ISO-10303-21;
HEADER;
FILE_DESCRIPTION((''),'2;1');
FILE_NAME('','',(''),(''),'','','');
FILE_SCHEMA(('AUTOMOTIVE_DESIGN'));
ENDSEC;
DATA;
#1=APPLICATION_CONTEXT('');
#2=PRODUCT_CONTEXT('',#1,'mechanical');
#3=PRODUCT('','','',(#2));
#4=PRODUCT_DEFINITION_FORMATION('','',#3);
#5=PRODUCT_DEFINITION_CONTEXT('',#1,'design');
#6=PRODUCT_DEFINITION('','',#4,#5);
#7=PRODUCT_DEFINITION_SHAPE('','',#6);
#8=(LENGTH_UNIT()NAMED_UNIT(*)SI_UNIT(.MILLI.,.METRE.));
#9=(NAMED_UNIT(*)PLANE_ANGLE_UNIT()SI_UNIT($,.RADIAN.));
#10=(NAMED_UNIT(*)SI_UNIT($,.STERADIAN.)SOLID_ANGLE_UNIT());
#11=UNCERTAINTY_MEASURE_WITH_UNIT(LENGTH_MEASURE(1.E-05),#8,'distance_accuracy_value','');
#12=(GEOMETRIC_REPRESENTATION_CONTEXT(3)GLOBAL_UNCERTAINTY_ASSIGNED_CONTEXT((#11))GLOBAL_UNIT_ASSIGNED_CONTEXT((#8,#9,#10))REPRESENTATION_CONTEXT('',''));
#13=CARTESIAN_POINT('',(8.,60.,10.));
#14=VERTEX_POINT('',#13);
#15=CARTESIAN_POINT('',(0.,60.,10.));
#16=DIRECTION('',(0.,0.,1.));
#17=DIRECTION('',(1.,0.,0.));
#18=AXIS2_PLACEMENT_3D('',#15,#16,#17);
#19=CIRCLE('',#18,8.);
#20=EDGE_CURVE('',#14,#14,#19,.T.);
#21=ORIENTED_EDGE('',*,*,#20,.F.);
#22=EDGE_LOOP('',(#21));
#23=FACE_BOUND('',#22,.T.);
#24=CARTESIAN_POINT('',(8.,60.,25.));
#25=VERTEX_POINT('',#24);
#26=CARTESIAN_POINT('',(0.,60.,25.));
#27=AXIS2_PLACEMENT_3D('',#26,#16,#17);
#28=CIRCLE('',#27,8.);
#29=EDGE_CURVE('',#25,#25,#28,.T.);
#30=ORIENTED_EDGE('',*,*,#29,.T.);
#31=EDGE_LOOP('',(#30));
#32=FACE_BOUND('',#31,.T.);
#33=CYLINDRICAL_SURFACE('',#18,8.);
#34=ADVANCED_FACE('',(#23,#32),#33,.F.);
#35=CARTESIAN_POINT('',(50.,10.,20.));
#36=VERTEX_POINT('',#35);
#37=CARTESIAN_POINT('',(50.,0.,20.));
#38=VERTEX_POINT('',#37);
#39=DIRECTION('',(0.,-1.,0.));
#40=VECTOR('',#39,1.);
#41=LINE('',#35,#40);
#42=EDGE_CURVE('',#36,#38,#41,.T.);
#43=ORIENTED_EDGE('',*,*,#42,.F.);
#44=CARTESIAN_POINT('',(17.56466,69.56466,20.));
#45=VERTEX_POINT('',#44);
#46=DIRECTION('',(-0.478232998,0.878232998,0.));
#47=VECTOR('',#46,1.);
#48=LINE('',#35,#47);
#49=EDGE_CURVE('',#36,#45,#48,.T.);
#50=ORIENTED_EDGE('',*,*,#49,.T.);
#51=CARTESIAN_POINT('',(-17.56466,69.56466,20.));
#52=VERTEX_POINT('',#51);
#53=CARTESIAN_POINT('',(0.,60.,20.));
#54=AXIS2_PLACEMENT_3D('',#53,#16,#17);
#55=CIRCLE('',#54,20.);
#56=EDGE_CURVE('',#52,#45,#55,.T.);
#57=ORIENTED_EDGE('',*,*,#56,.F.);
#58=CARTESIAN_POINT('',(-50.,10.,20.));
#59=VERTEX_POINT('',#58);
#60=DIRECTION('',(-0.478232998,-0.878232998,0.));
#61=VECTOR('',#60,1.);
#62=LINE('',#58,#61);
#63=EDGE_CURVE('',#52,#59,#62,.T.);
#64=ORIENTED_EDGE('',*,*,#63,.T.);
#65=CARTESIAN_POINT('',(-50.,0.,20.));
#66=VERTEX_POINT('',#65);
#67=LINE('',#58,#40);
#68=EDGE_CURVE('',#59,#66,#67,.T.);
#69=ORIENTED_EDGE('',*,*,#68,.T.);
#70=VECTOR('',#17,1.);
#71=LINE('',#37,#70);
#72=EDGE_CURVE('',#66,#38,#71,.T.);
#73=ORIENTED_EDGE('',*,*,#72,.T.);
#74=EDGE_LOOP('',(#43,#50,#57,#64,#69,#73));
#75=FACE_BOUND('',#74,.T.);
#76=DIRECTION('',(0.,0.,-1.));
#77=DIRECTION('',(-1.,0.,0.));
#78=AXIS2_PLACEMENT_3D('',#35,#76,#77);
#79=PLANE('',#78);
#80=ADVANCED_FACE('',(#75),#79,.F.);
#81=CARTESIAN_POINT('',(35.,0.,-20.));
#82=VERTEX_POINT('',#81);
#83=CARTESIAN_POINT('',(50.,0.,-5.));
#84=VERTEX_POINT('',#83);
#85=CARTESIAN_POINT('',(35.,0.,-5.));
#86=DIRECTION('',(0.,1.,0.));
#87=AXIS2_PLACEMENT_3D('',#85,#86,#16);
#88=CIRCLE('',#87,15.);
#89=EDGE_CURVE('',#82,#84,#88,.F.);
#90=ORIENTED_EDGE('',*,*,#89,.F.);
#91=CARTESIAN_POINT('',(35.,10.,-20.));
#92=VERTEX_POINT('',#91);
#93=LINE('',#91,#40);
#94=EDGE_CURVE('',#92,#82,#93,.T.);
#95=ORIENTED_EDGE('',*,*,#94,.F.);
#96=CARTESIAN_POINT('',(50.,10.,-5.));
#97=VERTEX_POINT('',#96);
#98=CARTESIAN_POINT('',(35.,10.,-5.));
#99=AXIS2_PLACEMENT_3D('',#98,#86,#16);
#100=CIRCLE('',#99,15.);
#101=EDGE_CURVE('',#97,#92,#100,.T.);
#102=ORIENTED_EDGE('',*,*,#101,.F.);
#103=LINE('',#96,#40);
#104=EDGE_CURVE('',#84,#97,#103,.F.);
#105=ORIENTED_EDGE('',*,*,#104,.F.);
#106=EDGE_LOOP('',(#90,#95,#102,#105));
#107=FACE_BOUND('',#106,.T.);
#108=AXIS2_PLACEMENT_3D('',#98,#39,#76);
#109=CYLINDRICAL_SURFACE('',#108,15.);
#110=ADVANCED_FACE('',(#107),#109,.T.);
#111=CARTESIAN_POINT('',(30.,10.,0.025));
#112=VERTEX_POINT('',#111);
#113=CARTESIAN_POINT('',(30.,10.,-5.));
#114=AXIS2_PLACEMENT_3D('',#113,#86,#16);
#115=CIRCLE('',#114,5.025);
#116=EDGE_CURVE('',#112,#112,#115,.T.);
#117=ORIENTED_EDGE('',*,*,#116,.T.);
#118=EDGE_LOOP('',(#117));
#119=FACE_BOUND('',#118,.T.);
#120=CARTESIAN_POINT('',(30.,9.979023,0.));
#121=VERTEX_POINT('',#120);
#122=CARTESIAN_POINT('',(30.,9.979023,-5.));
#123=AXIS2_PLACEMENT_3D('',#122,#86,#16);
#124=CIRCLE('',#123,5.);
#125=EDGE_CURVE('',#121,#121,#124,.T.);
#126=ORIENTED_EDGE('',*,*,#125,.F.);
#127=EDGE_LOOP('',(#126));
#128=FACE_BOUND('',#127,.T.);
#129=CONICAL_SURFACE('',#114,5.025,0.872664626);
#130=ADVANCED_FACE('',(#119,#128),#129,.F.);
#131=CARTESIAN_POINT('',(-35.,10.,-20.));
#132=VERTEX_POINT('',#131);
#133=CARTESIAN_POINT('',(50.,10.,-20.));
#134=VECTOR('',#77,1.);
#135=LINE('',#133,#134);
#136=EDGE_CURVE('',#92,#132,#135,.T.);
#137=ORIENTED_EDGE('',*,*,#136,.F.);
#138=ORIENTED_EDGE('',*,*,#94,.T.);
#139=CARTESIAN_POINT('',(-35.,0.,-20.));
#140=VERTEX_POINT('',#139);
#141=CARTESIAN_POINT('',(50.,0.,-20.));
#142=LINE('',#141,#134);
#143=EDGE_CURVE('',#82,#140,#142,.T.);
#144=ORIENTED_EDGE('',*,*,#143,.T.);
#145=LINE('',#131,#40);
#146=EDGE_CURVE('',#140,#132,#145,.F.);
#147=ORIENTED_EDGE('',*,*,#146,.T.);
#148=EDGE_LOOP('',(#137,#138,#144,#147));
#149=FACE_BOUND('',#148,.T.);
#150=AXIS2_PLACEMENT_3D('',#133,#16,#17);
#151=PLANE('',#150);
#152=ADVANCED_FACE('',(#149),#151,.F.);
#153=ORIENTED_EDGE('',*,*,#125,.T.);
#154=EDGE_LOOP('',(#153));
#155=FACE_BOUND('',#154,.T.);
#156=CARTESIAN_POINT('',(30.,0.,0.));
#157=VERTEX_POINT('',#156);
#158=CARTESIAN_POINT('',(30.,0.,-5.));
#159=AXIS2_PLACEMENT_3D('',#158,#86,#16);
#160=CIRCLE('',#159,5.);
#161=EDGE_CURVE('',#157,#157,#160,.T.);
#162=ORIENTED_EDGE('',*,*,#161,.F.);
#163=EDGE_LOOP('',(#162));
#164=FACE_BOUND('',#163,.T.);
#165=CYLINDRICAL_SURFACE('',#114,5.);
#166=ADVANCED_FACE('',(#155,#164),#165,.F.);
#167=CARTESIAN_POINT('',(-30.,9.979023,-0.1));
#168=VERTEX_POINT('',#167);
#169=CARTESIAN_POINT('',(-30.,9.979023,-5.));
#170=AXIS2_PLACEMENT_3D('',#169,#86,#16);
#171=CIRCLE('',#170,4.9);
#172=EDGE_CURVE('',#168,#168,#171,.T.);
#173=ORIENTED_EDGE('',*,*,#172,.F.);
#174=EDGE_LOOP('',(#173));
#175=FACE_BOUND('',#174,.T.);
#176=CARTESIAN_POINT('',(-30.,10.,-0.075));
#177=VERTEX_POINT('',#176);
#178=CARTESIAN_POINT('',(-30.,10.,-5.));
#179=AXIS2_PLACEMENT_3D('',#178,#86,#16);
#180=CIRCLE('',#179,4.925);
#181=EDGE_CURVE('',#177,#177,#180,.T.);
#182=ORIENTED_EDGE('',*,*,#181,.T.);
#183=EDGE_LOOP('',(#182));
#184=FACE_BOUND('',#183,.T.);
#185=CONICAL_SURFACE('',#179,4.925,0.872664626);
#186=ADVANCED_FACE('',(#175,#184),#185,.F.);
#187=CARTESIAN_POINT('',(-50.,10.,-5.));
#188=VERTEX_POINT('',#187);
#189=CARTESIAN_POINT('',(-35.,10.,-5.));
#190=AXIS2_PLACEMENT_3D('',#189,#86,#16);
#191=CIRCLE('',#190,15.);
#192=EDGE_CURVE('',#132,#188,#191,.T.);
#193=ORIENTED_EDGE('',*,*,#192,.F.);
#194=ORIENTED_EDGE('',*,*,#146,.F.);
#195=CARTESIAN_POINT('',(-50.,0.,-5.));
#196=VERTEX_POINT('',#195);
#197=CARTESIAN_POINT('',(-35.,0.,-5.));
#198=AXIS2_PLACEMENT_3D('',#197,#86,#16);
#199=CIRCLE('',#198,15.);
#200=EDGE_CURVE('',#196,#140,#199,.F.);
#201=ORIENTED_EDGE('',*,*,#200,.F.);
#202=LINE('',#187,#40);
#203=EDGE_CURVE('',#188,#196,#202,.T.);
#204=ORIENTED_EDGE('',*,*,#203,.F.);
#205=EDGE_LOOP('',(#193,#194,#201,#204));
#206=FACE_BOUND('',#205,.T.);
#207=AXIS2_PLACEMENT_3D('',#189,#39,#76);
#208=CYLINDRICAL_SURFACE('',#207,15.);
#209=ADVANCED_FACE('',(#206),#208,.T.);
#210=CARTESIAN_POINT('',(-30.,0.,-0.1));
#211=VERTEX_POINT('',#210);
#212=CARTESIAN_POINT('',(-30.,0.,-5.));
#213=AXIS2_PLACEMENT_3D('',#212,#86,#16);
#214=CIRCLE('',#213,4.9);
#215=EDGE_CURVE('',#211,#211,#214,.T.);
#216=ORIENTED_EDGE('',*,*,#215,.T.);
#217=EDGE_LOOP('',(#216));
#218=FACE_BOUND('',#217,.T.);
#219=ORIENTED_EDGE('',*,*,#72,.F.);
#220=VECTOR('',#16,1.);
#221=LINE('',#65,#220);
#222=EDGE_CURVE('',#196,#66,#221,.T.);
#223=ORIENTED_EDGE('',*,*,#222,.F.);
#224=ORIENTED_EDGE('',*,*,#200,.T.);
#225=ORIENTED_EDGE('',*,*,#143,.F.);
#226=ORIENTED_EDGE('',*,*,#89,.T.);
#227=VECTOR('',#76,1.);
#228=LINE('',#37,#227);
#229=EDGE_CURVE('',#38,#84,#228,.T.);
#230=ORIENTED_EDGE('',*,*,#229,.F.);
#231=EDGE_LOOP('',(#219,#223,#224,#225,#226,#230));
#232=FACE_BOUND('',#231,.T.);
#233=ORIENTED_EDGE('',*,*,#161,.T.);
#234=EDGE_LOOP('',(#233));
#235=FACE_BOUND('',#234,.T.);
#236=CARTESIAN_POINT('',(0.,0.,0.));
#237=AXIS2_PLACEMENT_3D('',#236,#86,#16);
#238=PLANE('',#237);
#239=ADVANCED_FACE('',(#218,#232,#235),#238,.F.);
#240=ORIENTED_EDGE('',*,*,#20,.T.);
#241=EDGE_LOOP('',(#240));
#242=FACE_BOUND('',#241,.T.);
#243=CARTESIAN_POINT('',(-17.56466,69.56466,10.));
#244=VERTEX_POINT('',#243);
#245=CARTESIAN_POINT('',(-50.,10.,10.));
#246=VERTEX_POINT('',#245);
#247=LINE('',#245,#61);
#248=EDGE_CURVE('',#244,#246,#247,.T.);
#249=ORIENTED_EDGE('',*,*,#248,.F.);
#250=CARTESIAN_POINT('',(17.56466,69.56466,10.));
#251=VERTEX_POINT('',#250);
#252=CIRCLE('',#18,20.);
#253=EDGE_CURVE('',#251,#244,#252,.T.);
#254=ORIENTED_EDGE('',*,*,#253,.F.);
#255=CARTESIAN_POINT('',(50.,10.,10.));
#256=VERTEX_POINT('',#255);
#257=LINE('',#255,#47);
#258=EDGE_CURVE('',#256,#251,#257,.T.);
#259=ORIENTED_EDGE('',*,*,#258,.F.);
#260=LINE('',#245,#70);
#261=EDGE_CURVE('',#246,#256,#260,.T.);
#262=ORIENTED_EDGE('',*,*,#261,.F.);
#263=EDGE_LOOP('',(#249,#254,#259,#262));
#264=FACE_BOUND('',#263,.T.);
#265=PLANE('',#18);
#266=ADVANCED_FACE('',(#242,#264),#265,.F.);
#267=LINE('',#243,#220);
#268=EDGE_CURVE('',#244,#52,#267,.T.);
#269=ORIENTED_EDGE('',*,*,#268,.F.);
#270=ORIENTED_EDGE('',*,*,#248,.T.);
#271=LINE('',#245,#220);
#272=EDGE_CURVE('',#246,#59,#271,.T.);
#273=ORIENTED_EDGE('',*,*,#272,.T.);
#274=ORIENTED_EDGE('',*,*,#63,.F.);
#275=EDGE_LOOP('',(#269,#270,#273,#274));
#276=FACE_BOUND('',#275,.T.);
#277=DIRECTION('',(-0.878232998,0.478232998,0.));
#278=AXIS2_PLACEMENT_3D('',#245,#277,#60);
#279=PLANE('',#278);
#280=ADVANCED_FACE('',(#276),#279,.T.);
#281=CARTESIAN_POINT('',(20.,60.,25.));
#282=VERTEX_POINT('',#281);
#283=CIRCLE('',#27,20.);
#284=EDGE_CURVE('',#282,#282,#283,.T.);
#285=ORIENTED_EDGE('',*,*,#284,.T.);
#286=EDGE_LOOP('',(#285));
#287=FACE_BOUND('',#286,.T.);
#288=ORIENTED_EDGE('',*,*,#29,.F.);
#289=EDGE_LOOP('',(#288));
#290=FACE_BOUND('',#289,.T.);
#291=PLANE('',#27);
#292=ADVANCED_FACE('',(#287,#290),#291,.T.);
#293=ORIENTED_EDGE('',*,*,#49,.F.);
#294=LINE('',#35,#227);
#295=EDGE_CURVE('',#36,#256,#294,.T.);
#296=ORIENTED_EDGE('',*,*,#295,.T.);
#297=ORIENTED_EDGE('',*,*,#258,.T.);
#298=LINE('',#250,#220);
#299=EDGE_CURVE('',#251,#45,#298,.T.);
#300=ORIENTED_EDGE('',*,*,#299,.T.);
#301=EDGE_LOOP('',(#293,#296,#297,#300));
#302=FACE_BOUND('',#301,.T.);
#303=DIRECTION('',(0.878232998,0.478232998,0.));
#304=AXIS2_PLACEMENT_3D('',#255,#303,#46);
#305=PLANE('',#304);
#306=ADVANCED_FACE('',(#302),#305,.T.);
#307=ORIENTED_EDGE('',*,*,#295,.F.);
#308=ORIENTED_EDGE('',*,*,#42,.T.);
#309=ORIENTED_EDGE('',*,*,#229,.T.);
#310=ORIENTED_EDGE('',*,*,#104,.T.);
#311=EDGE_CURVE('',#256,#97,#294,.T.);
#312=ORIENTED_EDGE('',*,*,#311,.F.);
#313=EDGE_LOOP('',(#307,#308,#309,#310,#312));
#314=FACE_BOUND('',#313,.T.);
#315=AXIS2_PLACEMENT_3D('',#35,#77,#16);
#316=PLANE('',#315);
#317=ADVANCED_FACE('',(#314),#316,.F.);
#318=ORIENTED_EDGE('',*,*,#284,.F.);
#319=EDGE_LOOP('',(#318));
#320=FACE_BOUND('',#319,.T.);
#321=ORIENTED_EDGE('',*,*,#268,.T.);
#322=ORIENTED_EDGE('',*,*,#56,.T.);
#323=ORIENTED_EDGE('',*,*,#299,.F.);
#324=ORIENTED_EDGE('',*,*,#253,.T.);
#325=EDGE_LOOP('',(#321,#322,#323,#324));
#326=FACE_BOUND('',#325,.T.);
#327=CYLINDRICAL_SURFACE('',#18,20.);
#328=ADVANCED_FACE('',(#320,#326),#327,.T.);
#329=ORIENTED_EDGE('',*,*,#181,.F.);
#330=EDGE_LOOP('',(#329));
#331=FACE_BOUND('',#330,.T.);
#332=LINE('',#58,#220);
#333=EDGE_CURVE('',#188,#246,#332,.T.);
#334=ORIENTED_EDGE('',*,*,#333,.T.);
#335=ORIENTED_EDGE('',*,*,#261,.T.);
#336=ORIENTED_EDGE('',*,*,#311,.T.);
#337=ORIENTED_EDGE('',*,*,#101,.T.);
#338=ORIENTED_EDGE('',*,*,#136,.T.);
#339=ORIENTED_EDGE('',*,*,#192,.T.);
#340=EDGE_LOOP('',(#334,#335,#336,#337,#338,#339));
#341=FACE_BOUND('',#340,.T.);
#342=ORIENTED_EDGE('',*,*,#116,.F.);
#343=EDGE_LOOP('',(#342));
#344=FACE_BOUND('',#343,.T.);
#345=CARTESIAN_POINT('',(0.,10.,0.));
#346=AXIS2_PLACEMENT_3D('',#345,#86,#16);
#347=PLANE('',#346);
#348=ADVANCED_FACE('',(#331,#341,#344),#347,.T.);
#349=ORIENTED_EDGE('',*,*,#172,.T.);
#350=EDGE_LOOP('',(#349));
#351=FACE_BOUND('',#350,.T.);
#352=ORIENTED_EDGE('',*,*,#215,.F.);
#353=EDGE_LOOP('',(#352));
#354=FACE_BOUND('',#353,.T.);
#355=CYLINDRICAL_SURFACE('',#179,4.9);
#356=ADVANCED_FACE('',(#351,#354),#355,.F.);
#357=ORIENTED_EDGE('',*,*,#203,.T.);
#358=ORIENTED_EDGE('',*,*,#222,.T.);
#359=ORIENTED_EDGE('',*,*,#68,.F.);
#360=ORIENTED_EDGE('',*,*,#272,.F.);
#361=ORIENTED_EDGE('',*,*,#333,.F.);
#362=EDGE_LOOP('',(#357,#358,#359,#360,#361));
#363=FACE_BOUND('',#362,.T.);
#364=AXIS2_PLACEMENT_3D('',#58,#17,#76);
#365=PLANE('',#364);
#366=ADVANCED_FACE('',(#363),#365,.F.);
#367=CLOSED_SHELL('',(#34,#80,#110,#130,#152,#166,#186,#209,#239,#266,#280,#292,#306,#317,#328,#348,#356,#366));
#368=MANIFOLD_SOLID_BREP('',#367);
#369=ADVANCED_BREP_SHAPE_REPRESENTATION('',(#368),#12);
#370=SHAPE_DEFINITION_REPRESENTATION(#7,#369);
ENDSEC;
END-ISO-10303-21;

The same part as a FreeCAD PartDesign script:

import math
import FreeCAD as App
import Part
import Sketcher


def edges_at(feature, points):
    """Names of the edges that pass closest to the given points."""
    edges = feature.Shape.Edges
    near = lambda p: min(range(len(edges)), key=lambda i: edges[i].distToShape(Part.Vertex(*p))[0])
    return sorted({f"Edge{near(p) + 1}" for p in points})


def add_polygon(sketch, points):
    """Adds a closed chain of lines whose ends are joined by coincident constraints."""
    first, n = sketch.GeometryCount, len(points)
    for a, b in zip(points, points[1:] + points[:1]):
        sketch.addGeometry(Part.LineSegment(App.Vector(*a, 0), App.Vector(*b, 0)), False)
    for i in range(n):
        sketch.addConstraint(Sketcher.Constraint("Coincident", first + i, 2, first + (i + 1) % n, 1))

doc = App.newDocument("Part")
body = doc.addObject("PartDesign::Body", "Body")

# Sketch on XZ plane
sketch1 = body.newObject("Sketcher::SketchObject", "Sketch")
sketch1.AttachmentSupport = (doc.getObject("XZ_Plane"), [""])
sketch1.MapMode = "FlatFace"
add_polygon(sketch1, [(-50, -20), (-50, 20), (50, 20), (50, -20)])  # lines 0-3
sketch1.addConstraint([
    Sketcher.Constraint("Vertical", 0),
    Sketcher.Constraint("Horizontal", 1),
    Sketcher.Constraint("Vertical", 2),
    Sketcher.Constraint("Horizontal", 3),
    Sketcher.Constraint("Symmetric", 0, 2, 2, 2, -1, 1),
    Sketcher.Constraint("DistanceX", 1, 1, 1, 2, 100.0),
    Sketcher.Constraint("DistanceY", 0, 1, 0, 2, 40.0),
])
pad1 = body.newObject("PartDesign::Pad", "Pad")
pad1.Profile = sketch1
pad1.Length = 10
pad1.Reversed = True

# Sketch on XY plane
sketch2 = body.newObject("Sketcher::SketchObject", "Sketch001")
sketch2.AttachmentSupport = (doc.getObject("XY_Plane"), [""])
sketch2.MapMode = "FlatFace"
sketch2.AttachmentOffset = App.Placement(App.Vector(0, 0, 20), App.Rotation())
sketch2.addGeometry([
    Part.LineSegment(App.Vector(-18, 70, 0), App.Vector(-50, 10, 0)),  # 0
    Part.LineSegment(App.Vector(-50, 10, 0), App.Vector(50, 10, 0)),  # 1
    Part.LineSegment(App.Vector(50, 10, 0), App.Vector(18, 70, 0)),  # 2
    Part.ArcOfCircle(Part.Circle(App.Vector(0, 60, 0), App.Vector(0, 0, 1), 20), math.radians(29), math.radians(151)),  # 3
    Part.Circle(App.Vector(0, 60, 0), App.Vector(0, 0, 1), 8),  # 4
], False)
sketch2.addConstraint([
    Sketcher.Constraint("Coincident", 0, 2, 1, 1),
    Sketcher.Constraint("Coincident", 1, 2, 2, 1),
    Sketcher.Constraint("Tangent", 2, 2, 3, 1),
    Sketcher.Constraint("Tangent", 3, 2, 0, 1),
    Sketcher.Constraint("Horizontal", 1),
    Sketcher.Constraint("Coincident", 4, 3, 3, 3),
    Sketcher.Constraint("Symmetric", 2, 2, 3, 2, -2),
    Sketcher.Constraint("Diameter", 4, 16.0),
    Sketcher.Constraint("Radius", 3, 20.0),
    Sketcher.Constraint("DistanceX", 1, 1, 1, 2, 100.0),
    Sketcher.Constraint("DistanceY", -1, 1, 3, 3, 60.0),
    Sketcher.Constraint("DistanceY", -1, 1, 0, 2, 10.0),
])
pad2 = body.newObject("PartDesign::Pad", "Pad001")
pad2.Profile = sketch2
pad2.Length = 10
pad2.Reversed = True

# Sketch on XY plane
sketch3 = body.newObject("Sketcher::SketchObject", "Sketch002")
sketch3.AttachmentSupport = (doc.getObject("XY_Plane"), [""])
sketch3.MapMode = "FlatFace"
sketch3.AttachmentOffset = App.Placement(App.Vector(0, 0, 25), App.Rotation())
sketch3.addGeometry([
    Part.Circle(App.Vector(0, 60, 0), App.Vector(0, 0, 1), 20),
    Part.Circle(App.Vector(0, 60, 0), App.Vector(0, 0, 1), 8),
], False)
sketch3.addConstraint([
    Sketcher.Constraint("Coincident", 1, 3, 0, 3),
    Sketcher.Constraint("PointOnObject", 0, 3, -2),
    Sketcher.Constraint("Diameter", 0, 40.0),
    Sketcher.Constraint("Diameter", 1, 16.0),
    Sketcher.Constraint("DistanceY", -1, 1, 0, 3, 60.0),
])
pad3 = body.newObject("PartDesign::Pad", "Pad002")
pad3.Profile = sketch3
pad3.Length = 5
pad3.Reversed = True

# Sketch on XZ plane
sketch4 = body.newObject("Sketcher::SketchObject", "Sketch003")
sketch4.AttachmentSupport = (doc.getObject("XZ_Plane"), [""])
sketch4.MapMode = "FlatFace"
sketch4.AttachmentOffset = App.Placement(App.Vector(0, 0, -10), App.Rotation())
sketch4.addGeometry(Part.Circle(App.Vector(-30, -5, 0), App.Vector(0, 0, 1), 4.9), False)
sketch4.addConstraint([
    Sketcher.Constraint("Diameter", 0, 9.8),
    Sketcher.Constraint("DistanceX", 0, 3, -1, 1, 30.0),
    Sketcher.Constraint("DistanceY", 0, 3, -1, 1, 5.0),
])
doc.recompute()
hole = body.newObject("PartDesign::Hole", "Hole")
hole.Profile = sketch4
hole.ThreadType = "None"
hole.Diameter = 9.8
hole.DepthType = "ThroughAll"
hole.HoleCutType = "Countersink"
hole.HoleCutDiameter = 9.85
hole.HoleCutCountersinkAngle = 100
hole.Reversed = True

# Sketch on XZ plane
sketch5 = body.newObject("Sketcher::SketchObject", "Sketch004")
sketch5.AttachmentSupport = (doc.getObject("XZ_Plane"), [""])
sketch5.MapMode = "FlatFace"
sketch5.AttachmentOffset = App.Placement(App.Vector(0, 0, -10), App.Rotation())
sketch5.addGeometry(Part.Circle(App.Vector(30, -5, 0), App.Vector(0, 0, 1), 5), False)
sketch5.addConstraint([
    Sketcher.Constraint("Diameter", 0, 10.0),
    Sketcher.Constraint("DistanceX", -1, 1, 0, 3, 30.0),
    Sketcher.Constraint("DistanceY", 0, 3, -1, 1, 5.0),
])
doc.recompute()
hole2 = body.newObject("PartDesign::Hole", "Hole001")
hole2.Profile = sketch5
hole2.ThreadType = "None"
hole2.Diameter = 10
hole2.DepthType = "ThroughAll"
hole2.HoleCutType = "Countersink"
hole2.HoleCutDiameter = 10.05
hole2.HoleCutCountersinkAngle = 100
hole2.Reversed = True
doc.recompute()

fillet = body.newObject("PartDesign::Fillet", "Fillet")
fillet.Base = (hole2, edges_at(hole2, [(-50, 5, -20), (50, 5, -20)]))
fillet.Radius = 15

doc.recompute()
